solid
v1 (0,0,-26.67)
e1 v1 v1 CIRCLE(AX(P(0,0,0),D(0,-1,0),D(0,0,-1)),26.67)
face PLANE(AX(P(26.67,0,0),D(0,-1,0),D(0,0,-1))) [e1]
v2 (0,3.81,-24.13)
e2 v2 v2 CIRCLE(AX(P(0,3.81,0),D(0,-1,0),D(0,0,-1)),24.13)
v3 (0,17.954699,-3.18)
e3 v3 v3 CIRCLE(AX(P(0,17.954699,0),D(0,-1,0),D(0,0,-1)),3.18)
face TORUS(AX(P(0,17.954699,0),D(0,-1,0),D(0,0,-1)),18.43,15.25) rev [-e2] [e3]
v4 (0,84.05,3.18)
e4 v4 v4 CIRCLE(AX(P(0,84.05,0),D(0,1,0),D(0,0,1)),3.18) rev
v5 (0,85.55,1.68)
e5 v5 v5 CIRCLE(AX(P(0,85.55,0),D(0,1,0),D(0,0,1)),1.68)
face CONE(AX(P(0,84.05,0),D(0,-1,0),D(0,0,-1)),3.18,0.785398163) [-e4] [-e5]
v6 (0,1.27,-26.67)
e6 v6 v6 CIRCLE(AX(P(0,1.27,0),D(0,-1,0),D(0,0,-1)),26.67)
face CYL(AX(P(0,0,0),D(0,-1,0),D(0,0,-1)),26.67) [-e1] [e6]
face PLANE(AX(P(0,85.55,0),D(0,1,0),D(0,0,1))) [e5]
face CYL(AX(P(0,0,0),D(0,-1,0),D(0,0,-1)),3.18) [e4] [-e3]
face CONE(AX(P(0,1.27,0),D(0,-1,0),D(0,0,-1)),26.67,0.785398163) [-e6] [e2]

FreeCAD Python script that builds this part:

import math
import FreeCAD as App
import Part
import Sketcher

V = App.Vector
Q = App.Units.Quantity


def edges_at(feature, points):
    """Names of the edges that pass closest to the given points."""
    edges = feature.Shape.Edges
    near = lambda p: min(range(len(edges)), key=lambda i: edges[i].distToShape(Part.Vertex(*p))[0])
    return sorted({f"Edge{near(p) + 1}" for p in points})

doc = App.newDocument("Part")
body = doc.addObject("PartDesign::Body", "Body")

# Sketch on XY plane
sketch1 = body.newObject("Sketcher::SketchObject", "Sketch")
sketch1.AttachmentSupport = (doc.getObject("XY_Plane"), [""])
sketch1.MapMode = "FlatFace"
sketch1.addGeometry([
    Part.LineSegment(V(0, 85.5, 0), V(0, 0, 0)),  # 0
    Part.LineSegment(V(0, 0, 0), V(26.7, 0, 0)),  # 1
    Part.LineSegment(V(26.7, 0, 0), V(26.7, 1.3, 0)),  # 2
    Part.LineSegment(V(26.7, 1.3, 0), V(24.1, 3.8, 0)),  # 3
    Part.ArcOfCircle(Part.Circle(V(18.4, 18, 0), V(0, 0, 1), 15.2), math.radians(180), math.radians(292)),  # 4
    Part.LineSegment(V(3.2, 18, 0), V(3.2, 85.5, 0)),  # 5
    Part.LineSegment(V(3.2, 85.5, 0), V(0, 85.5, 0)),  # 6
], False)
sketch1.addConstraint([
    Sketcher.Constraint("Coincident", 0, 2, 1, 1),
    Sketcher.Constraint("Coincident", 1, 2, 2, 1),
    Sketcher.Constraint("Coincident", 2, 2, 3, 1),
    Sketcher.Constraint("Coincident", 3, 2, 4, 2),
    Sketcher.Constraint("Tangent", 4, 1, 5, 1),
    Sketcher.Constraint("Coincident", 5, 2, 6, 1),
    Sketcher.Constraint("Coincident", 6, 2, 0, 1),
    Sketcher.Constraint("Vertical", 0),
    Sketcher.Constraint("Horizontal", 1),
    Sketcher.Constraint("Vertical", 2),
    Sketcher.Constraint("Vertical", 5),
    Sketcher.Constraint("Horizontal", 6),
    Sketcher.Constraint("Coincident", 0, 2, -1, 1),
    Sketcher.Constraint("Angle", 3, Q("135 deg")),
    Sketcher.Constraint("Radius", 4, Q("15.25 mm")),
    Sketcher.Constraint("DistanceX", 1, 1, 1, 2, Q("26.67 mm")),
    Sketcher.Constraint("DistanceX", 6, 2, 6, 1, Q("3.18 mm")),
    Sketcher.Constraint("DistanceY", 0, 2, 0, 1, Q("85.55 mm")),
    Sketcher.Constraint("DistanceY", 2, 1, 2, 2, Q("1.27 mm")),
    Sketcher.Constraint("DistanceX", 4, 3, 3, 2, Q("5.7 mm")),
])
revolution = body.newObject("PartDesign::Revolution", "Revolution")
revolution.Profile = sketch1
revolution.ReferenceAxis = (sketch1, ["V_Axis"])
revolution.Angle = 360
doc.recompute()

chamfer = body.newObject("PartDesign::Chamfer", "Chamfer")
chamfer.Base = (revolution, edges_at(revolution, [(0, 85.55, 3.18)]))
chamfer.Size = 1.5

doc.recompute()
